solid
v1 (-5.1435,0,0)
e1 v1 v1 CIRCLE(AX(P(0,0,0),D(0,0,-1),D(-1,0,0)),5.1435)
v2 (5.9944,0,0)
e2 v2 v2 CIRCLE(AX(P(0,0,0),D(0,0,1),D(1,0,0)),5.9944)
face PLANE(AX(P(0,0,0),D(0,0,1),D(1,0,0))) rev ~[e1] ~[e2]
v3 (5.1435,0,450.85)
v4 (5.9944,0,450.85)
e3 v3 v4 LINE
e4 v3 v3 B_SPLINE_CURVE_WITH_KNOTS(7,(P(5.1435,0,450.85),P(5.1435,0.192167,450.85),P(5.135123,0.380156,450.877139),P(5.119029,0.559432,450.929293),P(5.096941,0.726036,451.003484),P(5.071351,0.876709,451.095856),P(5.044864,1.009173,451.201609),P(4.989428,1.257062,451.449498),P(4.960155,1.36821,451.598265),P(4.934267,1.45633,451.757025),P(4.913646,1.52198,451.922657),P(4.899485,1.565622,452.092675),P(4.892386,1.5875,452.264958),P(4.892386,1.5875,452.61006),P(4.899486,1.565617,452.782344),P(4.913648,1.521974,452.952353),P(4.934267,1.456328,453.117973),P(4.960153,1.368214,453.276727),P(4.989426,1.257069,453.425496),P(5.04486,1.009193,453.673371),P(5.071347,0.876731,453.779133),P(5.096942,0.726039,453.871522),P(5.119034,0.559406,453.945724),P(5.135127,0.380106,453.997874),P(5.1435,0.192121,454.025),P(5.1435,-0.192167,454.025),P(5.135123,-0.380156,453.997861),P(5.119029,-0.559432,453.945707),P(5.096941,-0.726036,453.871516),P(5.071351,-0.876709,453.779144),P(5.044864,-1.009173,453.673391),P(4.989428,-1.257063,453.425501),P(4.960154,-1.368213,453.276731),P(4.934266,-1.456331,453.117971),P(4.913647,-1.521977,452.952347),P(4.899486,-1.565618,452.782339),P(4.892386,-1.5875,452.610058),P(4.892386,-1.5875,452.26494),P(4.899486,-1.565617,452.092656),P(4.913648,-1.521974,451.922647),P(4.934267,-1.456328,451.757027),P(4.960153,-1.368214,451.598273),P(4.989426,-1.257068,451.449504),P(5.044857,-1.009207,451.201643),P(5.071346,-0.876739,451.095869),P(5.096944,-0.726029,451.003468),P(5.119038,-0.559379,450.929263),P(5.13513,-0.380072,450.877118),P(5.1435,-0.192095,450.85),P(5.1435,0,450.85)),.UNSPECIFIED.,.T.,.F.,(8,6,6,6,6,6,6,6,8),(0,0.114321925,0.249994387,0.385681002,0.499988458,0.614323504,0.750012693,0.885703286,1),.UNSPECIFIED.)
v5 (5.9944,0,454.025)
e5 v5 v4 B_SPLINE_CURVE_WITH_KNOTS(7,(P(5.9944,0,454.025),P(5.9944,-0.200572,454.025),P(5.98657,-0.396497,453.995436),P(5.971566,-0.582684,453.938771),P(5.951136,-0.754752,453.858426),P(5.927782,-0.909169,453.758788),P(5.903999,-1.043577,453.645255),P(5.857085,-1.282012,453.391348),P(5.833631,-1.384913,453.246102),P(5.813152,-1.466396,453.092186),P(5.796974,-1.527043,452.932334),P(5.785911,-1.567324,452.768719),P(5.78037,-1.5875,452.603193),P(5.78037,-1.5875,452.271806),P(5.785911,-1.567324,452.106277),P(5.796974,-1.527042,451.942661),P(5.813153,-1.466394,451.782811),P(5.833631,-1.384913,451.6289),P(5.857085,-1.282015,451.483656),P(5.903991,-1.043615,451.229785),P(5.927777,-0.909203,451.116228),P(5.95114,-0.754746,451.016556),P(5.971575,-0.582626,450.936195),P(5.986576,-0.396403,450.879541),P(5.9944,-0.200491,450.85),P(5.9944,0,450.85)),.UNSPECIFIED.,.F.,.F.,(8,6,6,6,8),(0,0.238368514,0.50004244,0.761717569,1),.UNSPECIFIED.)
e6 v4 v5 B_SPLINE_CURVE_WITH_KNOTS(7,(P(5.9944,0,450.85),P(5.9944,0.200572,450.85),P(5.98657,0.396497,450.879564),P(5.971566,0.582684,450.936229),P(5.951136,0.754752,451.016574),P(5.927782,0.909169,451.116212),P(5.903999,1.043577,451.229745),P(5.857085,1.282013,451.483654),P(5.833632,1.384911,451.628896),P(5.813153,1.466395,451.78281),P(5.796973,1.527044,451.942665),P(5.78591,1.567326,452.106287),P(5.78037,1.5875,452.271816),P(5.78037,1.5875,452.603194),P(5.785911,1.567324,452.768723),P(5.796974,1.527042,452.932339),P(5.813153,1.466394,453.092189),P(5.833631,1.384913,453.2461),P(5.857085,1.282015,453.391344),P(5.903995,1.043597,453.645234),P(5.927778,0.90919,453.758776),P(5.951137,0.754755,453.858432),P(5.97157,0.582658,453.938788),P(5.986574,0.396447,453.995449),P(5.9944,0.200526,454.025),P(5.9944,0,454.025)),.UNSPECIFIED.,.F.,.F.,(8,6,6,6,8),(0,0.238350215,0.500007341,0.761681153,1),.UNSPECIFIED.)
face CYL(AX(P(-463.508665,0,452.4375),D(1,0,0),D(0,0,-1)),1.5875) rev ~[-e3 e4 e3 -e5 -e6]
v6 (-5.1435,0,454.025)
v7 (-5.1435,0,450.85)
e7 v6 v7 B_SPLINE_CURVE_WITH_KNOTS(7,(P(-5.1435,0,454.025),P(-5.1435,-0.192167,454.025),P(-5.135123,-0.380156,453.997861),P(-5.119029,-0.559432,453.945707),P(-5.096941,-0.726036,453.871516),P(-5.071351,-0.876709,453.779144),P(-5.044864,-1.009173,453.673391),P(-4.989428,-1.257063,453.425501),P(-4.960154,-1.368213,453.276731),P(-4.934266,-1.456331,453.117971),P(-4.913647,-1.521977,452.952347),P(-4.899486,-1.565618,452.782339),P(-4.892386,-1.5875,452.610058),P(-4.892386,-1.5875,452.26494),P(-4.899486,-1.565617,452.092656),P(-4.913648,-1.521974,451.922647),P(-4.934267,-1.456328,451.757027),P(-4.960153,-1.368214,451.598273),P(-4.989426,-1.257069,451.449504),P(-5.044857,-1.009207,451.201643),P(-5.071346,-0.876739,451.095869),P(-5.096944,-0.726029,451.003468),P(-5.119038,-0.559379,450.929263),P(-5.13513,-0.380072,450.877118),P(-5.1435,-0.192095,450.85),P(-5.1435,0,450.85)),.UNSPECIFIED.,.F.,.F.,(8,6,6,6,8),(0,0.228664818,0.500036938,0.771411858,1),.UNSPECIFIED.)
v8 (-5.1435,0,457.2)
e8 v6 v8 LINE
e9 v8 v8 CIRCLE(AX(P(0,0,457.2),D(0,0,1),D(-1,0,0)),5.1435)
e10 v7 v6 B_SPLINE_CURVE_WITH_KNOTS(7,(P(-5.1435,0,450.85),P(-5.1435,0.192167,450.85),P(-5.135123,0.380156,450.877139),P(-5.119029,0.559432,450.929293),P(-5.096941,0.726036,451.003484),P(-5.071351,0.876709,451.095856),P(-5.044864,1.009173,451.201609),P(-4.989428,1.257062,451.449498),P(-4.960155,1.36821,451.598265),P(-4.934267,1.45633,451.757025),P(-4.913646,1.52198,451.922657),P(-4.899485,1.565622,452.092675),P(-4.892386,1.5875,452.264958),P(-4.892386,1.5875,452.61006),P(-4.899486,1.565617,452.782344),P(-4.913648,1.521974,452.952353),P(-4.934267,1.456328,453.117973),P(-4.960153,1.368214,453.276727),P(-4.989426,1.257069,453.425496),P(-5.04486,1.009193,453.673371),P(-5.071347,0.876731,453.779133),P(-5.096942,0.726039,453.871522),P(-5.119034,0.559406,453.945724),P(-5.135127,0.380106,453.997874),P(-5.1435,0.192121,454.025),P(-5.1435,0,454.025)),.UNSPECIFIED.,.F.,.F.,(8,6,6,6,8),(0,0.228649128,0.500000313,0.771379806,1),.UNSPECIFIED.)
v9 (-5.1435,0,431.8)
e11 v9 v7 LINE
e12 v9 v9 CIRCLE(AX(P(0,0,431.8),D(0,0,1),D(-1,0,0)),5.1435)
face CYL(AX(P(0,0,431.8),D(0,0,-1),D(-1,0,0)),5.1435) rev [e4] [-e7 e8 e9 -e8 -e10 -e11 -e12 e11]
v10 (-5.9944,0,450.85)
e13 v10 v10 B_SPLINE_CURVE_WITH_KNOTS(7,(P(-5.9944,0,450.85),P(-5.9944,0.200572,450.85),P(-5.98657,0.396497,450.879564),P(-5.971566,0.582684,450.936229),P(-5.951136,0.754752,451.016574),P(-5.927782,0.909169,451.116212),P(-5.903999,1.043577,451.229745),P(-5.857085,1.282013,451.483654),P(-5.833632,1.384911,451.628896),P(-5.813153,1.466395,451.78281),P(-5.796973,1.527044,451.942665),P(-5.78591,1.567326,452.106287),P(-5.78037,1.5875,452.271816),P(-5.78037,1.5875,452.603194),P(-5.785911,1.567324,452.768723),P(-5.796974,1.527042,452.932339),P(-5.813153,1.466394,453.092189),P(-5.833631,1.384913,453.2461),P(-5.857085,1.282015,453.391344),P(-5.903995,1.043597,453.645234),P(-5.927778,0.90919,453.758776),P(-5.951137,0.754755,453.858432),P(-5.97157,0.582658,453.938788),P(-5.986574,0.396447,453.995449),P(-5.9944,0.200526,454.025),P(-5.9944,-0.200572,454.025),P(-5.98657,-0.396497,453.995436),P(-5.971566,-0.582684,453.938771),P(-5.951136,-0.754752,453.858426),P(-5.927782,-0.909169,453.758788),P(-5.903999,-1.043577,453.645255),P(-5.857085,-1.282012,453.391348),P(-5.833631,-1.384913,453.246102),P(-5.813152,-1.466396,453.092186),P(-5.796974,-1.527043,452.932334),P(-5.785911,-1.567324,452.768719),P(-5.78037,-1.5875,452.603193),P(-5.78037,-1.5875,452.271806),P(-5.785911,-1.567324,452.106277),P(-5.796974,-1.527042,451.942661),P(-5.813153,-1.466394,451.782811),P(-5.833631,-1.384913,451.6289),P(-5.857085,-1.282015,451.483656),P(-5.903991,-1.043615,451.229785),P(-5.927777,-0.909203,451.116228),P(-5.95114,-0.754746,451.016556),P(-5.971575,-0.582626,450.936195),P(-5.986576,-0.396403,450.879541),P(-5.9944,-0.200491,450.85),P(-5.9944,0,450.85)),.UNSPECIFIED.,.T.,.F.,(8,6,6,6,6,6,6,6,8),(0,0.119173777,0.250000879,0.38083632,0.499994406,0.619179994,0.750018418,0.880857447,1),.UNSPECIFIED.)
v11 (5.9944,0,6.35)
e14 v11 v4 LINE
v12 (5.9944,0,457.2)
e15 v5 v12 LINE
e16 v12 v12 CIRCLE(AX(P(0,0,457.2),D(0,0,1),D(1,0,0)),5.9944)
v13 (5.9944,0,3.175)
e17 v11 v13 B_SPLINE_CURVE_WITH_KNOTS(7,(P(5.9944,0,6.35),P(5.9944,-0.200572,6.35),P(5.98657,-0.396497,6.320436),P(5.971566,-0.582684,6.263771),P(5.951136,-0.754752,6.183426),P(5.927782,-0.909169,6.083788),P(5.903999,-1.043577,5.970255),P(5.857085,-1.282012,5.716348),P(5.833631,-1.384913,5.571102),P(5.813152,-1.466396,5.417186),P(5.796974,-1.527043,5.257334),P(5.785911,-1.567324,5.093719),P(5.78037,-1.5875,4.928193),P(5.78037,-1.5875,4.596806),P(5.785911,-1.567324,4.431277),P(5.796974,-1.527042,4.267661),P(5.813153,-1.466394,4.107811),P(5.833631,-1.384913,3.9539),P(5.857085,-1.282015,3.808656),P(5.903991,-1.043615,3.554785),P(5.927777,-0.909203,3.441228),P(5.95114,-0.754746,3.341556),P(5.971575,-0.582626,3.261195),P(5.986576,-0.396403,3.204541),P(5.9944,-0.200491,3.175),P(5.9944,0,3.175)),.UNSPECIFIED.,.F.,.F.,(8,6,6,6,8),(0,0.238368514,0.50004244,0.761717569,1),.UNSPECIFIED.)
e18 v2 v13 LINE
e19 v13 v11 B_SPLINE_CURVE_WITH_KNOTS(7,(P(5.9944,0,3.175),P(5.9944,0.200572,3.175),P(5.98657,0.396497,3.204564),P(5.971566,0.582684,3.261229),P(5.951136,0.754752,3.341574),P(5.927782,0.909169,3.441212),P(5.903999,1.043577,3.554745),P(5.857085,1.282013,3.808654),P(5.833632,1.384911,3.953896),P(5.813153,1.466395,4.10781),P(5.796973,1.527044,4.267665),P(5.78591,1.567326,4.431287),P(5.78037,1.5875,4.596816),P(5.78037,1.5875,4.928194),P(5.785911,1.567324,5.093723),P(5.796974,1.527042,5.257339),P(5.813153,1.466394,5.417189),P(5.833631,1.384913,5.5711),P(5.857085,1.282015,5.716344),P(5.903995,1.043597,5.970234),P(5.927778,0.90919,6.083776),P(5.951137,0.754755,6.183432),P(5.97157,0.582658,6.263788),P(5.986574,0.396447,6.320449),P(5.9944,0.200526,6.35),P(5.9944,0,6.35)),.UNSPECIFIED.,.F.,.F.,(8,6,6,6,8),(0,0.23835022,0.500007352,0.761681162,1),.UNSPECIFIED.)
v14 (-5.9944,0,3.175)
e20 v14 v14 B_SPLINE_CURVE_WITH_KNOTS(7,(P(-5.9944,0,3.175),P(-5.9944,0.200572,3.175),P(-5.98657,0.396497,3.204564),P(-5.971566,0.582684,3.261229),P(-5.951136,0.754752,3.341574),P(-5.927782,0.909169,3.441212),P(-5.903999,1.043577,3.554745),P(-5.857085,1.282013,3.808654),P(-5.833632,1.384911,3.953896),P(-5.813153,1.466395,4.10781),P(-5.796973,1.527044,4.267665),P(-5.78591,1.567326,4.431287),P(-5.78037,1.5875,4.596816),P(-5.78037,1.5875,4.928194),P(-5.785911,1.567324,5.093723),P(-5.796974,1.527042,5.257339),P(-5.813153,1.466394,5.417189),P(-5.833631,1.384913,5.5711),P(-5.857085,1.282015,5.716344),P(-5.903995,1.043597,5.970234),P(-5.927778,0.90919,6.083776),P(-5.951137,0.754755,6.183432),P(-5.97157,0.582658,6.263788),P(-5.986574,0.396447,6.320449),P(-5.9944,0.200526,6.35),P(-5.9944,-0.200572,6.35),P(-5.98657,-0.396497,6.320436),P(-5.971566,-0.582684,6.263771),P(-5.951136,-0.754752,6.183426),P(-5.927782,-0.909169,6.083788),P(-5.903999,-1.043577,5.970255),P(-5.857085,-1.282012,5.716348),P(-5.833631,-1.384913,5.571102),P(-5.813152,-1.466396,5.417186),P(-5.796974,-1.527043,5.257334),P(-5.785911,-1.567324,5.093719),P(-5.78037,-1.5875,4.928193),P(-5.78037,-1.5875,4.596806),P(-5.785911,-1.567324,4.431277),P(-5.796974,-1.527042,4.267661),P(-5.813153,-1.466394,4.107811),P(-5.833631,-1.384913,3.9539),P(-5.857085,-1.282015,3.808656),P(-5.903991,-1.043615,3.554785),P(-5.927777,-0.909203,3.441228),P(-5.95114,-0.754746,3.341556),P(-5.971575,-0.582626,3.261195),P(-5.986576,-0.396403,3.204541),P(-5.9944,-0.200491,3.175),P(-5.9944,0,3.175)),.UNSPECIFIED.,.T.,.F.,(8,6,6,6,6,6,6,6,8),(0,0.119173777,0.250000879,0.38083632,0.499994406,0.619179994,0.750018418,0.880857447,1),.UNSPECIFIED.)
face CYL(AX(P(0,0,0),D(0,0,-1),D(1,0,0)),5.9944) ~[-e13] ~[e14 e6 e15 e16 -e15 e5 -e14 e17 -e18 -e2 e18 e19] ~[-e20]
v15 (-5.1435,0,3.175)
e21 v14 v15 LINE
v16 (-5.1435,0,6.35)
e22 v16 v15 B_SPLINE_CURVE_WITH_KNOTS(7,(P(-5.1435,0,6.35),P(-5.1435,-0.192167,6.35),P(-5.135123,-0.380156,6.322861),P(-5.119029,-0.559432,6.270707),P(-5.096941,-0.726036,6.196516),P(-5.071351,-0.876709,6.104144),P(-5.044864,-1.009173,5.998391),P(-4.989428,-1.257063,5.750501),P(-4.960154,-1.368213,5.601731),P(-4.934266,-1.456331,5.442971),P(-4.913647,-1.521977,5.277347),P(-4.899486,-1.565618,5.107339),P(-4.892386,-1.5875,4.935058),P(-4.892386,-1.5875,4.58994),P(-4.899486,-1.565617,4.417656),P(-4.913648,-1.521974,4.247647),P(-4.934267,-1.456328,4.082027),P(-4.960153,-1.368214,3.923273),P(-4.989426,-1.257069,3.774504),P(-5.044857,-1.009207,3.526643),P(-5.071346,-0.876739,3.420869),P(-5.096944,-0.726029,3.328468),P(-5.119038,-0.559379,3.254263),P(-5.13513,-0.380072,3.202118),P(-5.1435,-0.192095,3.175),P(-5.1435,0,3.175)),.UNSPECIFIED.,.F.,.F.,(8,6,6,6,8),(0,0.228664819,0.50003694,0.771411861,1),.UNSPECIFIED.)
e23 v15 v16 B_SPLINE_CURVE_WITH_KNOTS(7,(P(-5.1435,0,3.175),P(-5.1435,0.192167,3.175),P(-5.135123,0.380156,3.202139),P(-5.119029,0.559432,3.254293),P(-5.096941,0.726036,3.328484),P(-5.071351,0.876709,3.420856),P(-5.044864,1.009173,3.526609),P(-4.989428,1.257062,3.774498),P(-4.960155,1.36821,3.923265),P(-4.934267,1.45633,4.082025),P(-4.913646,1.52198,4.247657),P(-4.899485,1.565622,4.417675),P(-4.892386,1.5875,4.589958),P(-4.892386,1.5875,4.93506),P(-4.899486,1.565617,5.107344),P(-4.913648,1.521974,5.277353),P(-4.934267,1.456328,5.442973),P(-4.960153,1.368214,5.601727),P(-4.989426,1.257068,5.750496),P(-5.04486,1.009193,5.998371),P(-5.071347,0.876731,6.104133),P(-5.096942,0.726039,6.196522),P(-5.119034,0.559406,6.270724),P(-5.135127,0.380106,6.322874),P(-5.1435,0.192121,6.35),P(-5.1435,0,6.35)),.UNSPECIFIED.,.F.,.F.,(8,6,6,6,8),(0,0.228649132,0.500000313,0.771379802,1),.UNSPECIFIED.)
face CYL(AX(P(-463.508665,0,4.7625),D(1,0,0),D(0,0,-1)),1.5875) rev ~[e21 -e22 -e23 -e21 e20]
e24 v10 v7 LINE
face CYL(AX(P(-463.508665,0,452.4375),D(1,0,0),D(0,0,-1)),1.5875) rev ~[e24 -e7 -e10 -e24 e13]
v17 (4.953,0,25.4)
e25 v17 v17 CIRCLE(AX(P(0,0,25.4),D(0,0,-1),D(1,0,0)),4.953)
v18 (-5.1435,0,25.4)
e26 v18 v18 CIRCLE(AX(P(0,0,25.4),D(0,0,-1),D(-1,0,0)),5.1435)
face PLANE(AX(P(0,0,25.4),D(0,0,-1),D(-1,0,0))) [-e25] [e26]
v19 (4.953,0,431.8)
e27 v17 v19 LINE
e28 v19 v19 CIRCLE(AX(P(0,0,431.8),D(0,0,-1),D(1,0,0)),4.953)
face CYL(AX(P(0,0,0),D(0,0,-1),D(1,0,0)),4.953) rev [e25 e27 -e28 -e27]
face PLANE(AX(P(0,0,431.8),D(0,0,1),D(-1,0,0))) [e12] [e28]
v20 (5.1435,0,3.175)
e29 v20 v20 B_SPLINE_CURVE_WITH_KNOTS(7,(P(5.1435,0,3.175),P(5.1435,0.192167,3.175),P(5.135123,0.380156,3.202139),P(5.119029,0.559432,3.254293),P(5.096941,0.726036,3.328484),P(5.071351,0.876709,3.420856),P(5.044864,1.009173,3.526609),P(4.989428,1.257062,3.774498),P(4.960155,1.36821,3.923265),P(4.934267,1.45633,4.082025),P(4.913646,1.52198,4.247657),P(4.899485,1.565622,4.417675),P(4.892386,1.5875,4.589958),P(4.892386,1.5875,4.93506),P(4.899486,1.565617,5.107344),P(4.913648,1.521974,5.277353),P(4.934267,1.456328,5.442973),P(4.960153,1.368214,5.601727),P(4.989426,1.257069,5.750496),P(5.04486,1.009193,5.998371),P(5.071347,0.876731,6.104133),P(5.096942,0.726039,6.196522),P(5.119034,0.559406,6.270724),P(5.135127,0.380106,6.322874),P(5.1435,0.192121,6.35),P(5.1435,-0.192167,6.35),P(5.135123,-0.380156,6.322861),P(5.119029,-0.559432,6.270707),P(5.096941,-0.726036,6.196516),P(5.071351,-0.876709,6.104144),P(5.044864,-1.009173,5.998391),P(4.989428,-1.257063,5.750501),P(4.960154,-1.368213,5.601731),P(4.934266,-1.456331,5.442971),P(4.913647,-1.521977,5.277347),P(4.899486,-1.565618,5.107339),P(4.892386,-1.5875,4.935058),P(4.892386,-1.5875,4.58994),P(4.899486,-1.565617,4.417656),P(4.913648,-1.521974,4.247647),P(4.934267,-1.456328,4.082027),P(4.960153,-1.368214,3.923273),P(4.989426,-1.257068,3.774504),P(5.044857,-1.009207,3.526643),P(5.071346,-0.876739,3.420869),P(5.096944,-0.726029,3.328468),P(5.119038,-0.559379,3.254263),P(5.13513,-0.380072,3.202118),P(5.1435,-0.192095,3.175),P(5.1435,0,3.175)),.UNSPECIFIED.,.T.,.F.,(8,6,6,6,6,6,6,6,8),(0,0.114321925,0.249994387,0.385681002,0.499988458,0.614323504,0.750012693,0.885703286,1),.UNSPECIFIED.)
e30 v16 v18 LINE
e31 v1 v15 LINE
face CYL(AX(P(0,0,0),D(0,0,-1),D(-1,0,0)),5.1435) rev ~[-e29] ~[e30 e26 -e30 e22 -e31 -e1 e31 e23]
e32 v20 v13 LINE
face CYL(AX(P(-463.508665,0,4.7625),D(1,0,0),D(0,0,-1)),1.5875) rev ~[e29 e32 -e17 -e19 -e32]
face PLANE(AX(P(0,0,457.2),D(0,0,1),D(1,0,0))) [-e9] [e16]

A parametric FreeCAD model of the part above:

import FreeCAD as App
import Part
import Sketcher
from FreeCAD import Vector
Q = App.Units.Quantity

doc = App.newDocument("Part")
body = doc.addObject("PartDesign::Body", "Body")

sketch1 = body.newObject("Sketcher::SketchObject", "Sketch")
sketch1.AttachmentSupport = (doc.getObject("XY_Plane"), [""])
sketch1.MapMode = "FlatFace"
sketch1.addGeometry([
    Part.Circle(Vector(0, 0, 0), Vector(0, 0, 1), 6),
    Part.Circle(Vector(0, 0, 0), Vector(0, 0, 1), 5),
], False)
sketch1.addConstraint([
    Sketcher.Constraint("Coincident", 0, 3, -1, 1),
    Sketcher.Constraint("Coincident", 1, 3, -1, 1),
    Sketcher.Constraint("Diameter", 1, Q("0.39 in")),
    Sketcher.Constraint("Diameter", 0, Q("0.472 in")),
])
pad1 = body.newObject("PartDesign::Pad", "Pad")
pad1.Profile = sketch1
pad1.Length = Q("18 in")

sketch2 = body.newObject("Sketcher::SketchObject", "Sketch001")
sketch2.AttachmentSupport = (doc.getObject("XY_Plane"), [""])
sketch2.MapMode = "FlatFace"
sketch2.addGeometry(Part.Circle(Vector(0, 0, 0), Vector(0, 0, 1), 5), False)
sketch2.addConstraint([
    Sketcher.Constraint("Coincident", 0, 3, -1, 1),
    Sketcher.Constraint("Diameter", 0, Q("0.405 in")),
])
pocket1 = body.newObject("PartDesign::Pocket", "Pocket")
pocket1.Profile = sketch2
pocket1.Length = Q("1 in")
pocket1.Reversed = True

sketch3 = body.newObject("Sketcher::SketchObject", "Sketch002")
sketch3.AttachmentSupport = (doc.getObject("XY_Plane"), [""])
sketch3.MapMode = "FlatFace"
sketch3.AttachmentOffset = App.Placement(Vector(0, 0, 17 * 25.4), App.Rotation())
sketch3.addGeometry(Part.Circle(Vector(0, 0, 0), Vector(0, 0, 1), 5), False)
sketch3.addConstraint([
    Sketcher.Constraint("Coincident", 0, 3, -1, 1),
    Sketcher.Constraint("Diameter", 0, Q("0.405 in")),
])
pocket2 = body.newObject("PartDesign::Pocket", "Pocket001")
pocket2.Profile = sketch3
pocket2.Length = Q("1 in")
pocket2.Reversed = True

sketch4 = body.newObject("Sketcher::SketchObject", "Sketch003")
sketch4.AttachmentSupport = (doc.getObject("YZ_Plane"), [""])
sketch4.MapMode = "FlatFace"
sketch4.AttachmentOffset = App.Placement(Vector(0, 0, -0.236 * 25.4), App.Rotation())
sketch4.addGeometry([
    Part.Circle(Vector(0, 452.4, 0), Vector(0, 0, 1), 1.6),
    Part.Circle(Vector(0, 4.8, 0), Vector(0, 0, 1), 1.6),
], False)
sketch4.addConstraint([
    Sketcher.Constraint("Equal", 0, 1),
    Sketcher.Constraint("PointOnObject", 0, 3, -2),
    Sketcher.Constraint("PointOnObject", 1, 3, -2),
    Sketcher.Constraint("Diameter", 0, Q("0.125 in")),
    Sketcher.Constraint("DistanceY", -1, 1, 0, 3, Q("17.8125 in")),
    Sketcher.Constraint("DistanceY", -1, 1, 1, 3, Q("0.1875 in")),
])
doc.recompute()
hole = body.newObject("PartDesign::Hole", "Hole")
hole.Profile = sketch4
hole.ThreadType = "None"
hole.Diameter = Q("0.125 in")
hole.DepthType = "ThroughAll"
hole.Reversed = True

doc.recompute()
